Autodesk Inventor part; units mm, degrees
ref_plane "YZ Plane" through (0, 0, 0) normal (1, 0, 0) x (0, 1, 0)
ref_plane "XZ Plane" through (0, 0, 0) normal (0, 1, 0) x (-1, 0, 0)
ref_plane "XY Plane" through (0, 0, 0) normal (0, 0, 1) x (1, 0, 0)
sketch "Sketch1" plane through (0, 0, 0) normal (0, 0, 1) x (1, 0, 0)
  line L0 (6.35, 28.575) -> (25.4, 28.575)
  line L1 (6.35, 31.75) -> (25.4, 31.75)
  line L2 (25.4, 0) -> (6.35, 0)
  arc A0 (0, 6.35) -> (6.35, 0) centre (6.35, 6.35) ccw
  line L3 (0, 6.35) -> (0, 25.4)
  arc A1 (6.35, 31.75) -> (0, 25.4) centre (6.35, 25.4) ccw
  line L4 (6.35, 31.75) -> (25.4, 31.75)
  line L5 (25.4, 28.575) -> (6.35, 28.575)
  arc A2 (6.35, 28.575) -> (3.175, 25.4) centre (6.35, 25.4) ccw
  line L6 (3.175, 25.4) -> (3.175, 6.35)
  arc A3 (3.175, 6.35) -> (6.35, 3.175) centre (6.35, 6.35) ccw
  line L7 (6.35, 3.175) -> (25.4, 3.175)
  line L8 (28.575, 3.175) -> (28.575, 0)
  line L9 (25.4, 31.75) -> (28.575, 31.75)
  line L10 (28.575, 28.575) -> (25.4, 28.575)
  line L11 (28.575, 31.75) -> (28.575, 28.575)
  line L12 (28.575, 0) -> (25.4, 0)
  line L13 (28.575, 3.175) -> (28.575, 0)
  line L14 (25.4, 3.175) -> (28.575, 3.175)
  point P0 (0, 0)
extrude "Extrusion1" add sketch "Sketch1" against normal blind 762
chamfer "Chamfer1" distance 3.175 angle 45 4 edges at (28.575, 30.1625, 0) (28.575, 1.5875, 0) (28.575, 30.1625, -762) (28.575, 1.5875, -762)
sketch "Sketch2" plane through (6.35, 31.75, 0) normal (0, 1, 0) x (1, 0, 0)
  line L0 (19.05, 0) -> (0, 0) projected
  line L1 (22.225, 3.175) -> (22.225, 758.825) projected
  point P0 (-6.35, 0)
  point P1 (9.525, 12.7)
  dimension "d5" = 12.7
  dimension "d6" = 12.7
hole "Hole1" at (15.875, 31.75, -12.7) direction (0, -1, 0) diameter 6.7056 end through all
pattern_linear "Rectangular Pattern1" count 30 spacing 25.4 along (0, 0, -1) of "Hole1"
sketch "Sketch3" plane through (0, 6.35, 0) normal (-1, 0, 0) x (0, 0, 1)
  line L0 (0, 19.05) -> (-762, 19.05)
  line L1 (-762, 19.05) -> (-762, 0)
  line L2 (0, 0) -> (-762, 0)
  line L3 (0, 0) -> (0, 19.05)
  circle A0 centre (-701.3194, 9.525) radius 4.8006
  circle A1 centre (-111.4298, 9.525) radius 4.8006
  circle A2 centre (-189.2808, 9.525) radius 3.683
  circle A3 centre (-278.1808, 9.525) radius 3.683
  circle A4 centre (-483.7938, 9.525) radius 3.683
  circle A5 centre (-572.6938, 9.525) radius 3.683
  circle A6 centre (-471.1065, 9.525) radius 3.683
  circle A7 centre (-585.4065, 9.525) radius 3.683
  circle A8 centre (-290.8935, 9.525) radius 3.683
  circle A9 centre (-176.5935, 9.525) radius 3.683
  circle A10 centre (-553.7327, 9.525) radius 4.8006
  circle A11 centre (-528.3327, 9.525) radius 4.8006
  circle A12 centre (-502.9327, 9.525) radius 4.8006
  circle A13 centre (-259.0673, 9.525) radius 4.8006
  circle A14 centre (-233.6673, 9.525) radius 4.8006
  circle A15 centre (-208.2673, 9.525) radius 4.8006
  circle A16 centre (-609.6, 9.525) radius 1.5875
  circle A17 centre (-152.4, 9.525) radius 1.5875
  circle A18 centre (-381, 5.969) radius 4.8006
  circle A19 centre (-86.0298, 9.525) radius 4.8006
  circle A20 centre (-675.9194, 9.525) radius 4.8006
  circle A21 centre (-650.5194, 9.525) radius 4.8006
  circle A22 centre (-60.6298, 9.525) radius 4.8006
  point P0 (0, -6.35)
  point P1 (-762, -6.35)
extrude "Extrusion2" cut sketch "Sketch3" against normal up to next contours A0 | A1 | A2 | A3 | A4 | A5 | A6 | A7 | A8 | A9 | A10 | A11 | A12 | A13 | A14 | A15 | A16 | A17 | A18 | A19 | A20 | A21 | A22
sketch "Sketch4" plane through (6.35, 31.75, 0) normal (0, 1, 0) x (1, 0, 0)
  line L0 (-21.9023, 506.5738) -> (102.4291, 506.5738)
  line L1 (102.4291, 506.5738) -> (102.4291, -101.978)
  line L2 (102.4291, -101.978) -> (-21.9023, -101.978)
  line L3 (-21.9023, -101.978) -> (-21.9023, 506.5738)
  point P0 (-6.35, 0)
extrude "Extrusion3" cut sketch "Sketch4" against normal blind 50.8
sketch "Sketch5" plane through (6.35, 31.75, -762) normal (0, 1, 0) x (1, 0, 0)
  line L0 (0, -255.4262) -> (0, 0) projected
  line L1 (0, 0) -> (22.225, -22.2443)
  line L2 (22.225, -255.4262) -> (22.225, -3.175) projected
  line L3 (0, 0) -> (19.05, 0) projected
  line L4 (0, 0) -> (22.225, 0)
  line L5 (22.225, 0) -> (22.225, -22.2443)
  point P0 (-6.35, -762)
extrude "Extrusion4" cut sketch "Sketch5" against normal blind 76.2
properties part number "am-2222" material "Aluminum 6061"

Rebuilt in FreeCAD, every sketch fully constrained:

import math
import FreeCAD as App
import Part
import Sketcher

V = App.Vector
Q = App.Units.Quantity


def edges_at(feature, points):
    """Names of the edges that pass closest to the given points."""
    edges = feature.Shape.Edges
    near = lambda p: min(range(len(edges)), key=lambda i: edges[i].distToShape(Part.Vertex(*p))[0])
    return sorted({f"Edge{near(p) + 1}" for p in points})

doc = App.newDocument("Part")
params = doc.addObject("Spreadsheet::Sheet", "Params")
for row, (alias, value) in enumerate([
    ("sketch1_radius", "0.25 in"),
    ("sketch1_radius2", "0.125 in"),
    ("sketch1_width", "0.875 in"),
    ("pad1_length", "30 in"),
    ("chamfer_size", "0.125 in"),
    ("sketch2_diameter", "0.264 in"),
    ("hole_diameter", "0.264 in"),
    ("linearpattern_pitch", "1 in"),
    ("sketch3_diameter", "0.29 in"),
    ("sketch3_diameter2", "0.378 in"),
    ("sketch3_diameter3", "0.125 in"),
    ("pocket2_length", "2 in"),
    ("sketch5_width", "0.875 in"),
    ("pocket3_length", "3 in"),
], start=1):
    params.set(f"A{row}", alias)
    params.set(f"B{row}", "=" + value)
    params.setAlias(f"B{row}", alias)

body = doc.addObject("PartDesign::Body", "Body")

sketch1 = body.newObject("Sketcher::SketchObject", "Sketch")
sketch1.AttachmentSupport = (doc.getObject("XY_Plane"), [""])
sketch1.MapMode = "FlatFace"
sketch1.addGeometry(Part.ArcOfCircle(Part.Circle(V(6.35, 25.4, 0), V(0, 0, 1), 3.175), math.radians(90), math.radians(180)), False)
sketch1.addGeometry(Part.LineSegment(V(6.35, 28.575, 0), V(28.575, 28.575, 0)), False)
sketch1.addGeometry(Part.LineSegment(V(28.575, 28.575, 0), V(28.575, 31.75, 0)), False)
sketch1.addGeometry(Part.LineSegment(V(28.575, 31.75, 0), V(6.35, 31.75, 0)), False)
sketch1.addGeometry(Part.ArcOfCircle(Part.Circle(V(6.35, 25.4, 0), V(0, 0, 1), 6.35), math.radians(90), math.radians(180)), False)
sketch1.addGeometry(Part.LineSegment(V(0, 25.4, 0), V(0, 6.35, 0)), False)
sketch1.addGeometry(Part.ArcOfCircle(Part.Circle(V(6.35, 6.35, 0), V(0, 0, 1), 6.35), math.radians(180), math.radians(270)), False)
sketch1.addGeometry(Part.LineSegment(V(6.35, 0, 0), V(28.575, 0, 0)), False)
sketch1.addGeometry(Part.LineSegment(V(28.575, 0, 0), V(28.575, 3.175, 0)), False)
sketch1.addGeometry(Part.LineSegment(V(28.575, 3.175, 0), V(6.35, 3.175, 0)), False)
sketch1.addGeometry(Part.ArcOfCircle(Part.Circle(V(6.35, 6.35, 0), V(0, 0, 1), 3.175), math.radians(180), math.radians(270)), False)
sketch1.addGeometry(Part.LineSegment(V(3.175, 6.35, 0), V(3.175, 25.4, 0)), False)
sketch1.addConstraint(Sketcher.Constraint("Tangent", 0, 1, 1, 1))
sketch1.addConstraint(Sketcher.Constraint("Coincident", 1, 2, 2, 1))
sketch1.addConstraint(Sketcher.Constraint("Coincident", 2, 2, 3, 1))
sketch1.addConstraint(Sketcher.Constraint("Tangent", 3, 2, 4, 1))
sketch1.addConstraint(Sketcher.Constraint("Tangent", 4, 2, 5, 1))
sketch1.addConstraint(Sketcher.Constraint("Tangent", 5, 2, 6, 1))
sketch1.addConstraint(Sketcher.Constraint("Tangent", 6, 2, 7, 1))
sketch1.addConstraint(Sketcher.Constraint("Coincident", 7, 2, 8, 1))
sketch1.addConstraint(Sketcher.Constraint("Coincident", 8, 2, 9, 1))
sketch1.addConstraint(Sketcher.Constraint("Tangent", 9, 2, 10, 2))
sketch1.addConstraint(Sketcher.Constraint("Tangent", 10, 1, 11, 1))
sketch1.addConstraint(Sketcher.Constraint("Tangent", 11, 2, 0, 2))
sketch1.addConstraint(Sketcher.Constraint("Horizontal", 1))
sketch1.addConstraint(Sketcher.Constraint("Vertical", 2))
sketch1.addConstraint(Sketcher.Constraint("Horizontal", 3))
sketch1.addConstraint(Sketcher.Constraint("Vertical", 5))
sketch1.addConstraint(Sketcher.Constraint("Horizontal", 7))
sketch1.addConstraint(Sketcher.Constraint("Vertical", 8))
sketch1.addConstraint(Sketcher.Constraint("Horizontal", 9))
sketch1.addConstraint(Sketcher.Constraint("Vertical", 11))
sketch1.addConstraint(Sketcher.Constraint("Coincident", 4, 3, 0, 3))
sketch1.addConstraint(Sketcher.Constraint("Coincident", 10, 3, 6, 3))
sketch1.addConstraint(Sketcher.Constraint("Equal", 4, 6))
sketch1.addConstraint(Sketcher.Constraint("PointOnObject", 4, 2, -2))
sketch1.addConstraint(Sketcher.Constraint("PointOnObject", 6, 2, -1))
sketch1.addConstraint(Sketcher.Constraint("Vertical", 2, 2, 7, 2))
sketch1.addConstraint(Sketcher.Constraint("Radius", 4, Q("0.25 in")))
sketch1.addConstraint(Sketcher.Constraint("DistanceY", -1, 1, 0, 3, Q("1 in")))
sketch1.addConstraint(Sketcher.Constraint("Radius", 0, Q("0.125 in")))
sketch1.addConstraint(Sketcher.Constraint("DistanceX", 1, 1, 1, 2, Q("0.875 in")))
sketch1.setExpression("Constraints[26]", "Params.sketch1_radius")
sketch1.setExpression("Constraints[28]", "Params.sketch1_radius2")
sketch1.setExpression("Constraints[29]", "Params.sketch1_width")
pad1 = body.newObject("PartDesign::Pad", "Pad")
pad1.Profile = sketch1
pad1.setExpression("Length", "Params.pad1_length")
pad1.Reversed = True
doc.recompute()

chamfer = body.newObject("PartDesign::Chamfer", "Chamfer")
chamfer.Base = (pad1, edges_at(pad1, [
    (28.575, 30.163, 0),
    (28.575, 1.587, 0),
    (28.575, 30.163, -762),
    (28.575, 1.587, -762),
]))
chamfer.setExpression("Size", "Params.chamfer_size")

sketch2 = body.newObject("Sketcher::SketchObject", "Sketch001")
sketch2.AttachmentSupport = (doc.getObject("XZ_Plane"), [""])
sketch2.MapMode = "FlatFace"
sketch2.AttachmentOffset = App.Placement(V(0, 0, -1.25 * 25.4), App.Rotation())
sketch2.addGeometry(Part.Circle(V(15.875, -12.7, 0), V(0, 0, 1), 3.3528), False)
sketch2.addConstraint(Sketcher.Constraint("Diameter", 0, Q("0.264 in")))
sketch2.addConstraint(Sketcher.Constraint("DistanceY", 0, 3, -1, 1, Q("0.5 in")))
sketch2.addConstraint(Sketcher.Constraint("DistanceX", -1, 1, 0, 3, Q("0.625 in")))
sketch2.setExpression("Constraints[0]", "Params.sketch2_diameter")
doc.recompute()
hole = body.newObject("PartDesign::Hole", "Hole")
hole.Profile = sketch2
hole.ThreadType = "None"
hole.setExpression("Diameter", "Params.hole_diameter")
hole.DepthType = "ThroughAll"
hole.Reversed = True
doc.recompute()

linearpattern = body.newObject("PartDesign::LinearPattern", "LinearPattern")
linearpattern.Originals = [hole]
linearpattern.Direction = (doc.getObject("Z_Axis"), [""])
linearpattern.Mode = "offset"
linearpattern.setExpression("Offset", "Params.linearpattern_pitch")
linearpattern.Occurrences = 30
linearpattern.Reversed = True
body.Tip = linearpattern

sketch3 = body.newObject("Sketcher::SketchObject", "Sketch002")
sketch3.AttachmentSupport = (doc.getObject("YZ_Plane"), [""])
sketch3.MapMode = "FlatFace"
sketch3.addGeometry(Part.Circle(V(15.875, -701.3194, 0), V(0, 0, 1), 4.8006), False)
sketch3.addGeometry(Part.Circle(V(15.875, -111.4298, 0), V(0, 0, 1), 4.8006), False)
sketch3.addGeometry(Part.Circle(V(15.875, -189.2808, 0), V(0, 0, 1), 3.683), False)
sketch3.addGeometry(Part.Circle(V(15.875, -278.1808, 0), V(0, 0, 1), 3.683), False)
sketch3.addGeometry(Part.Circle(V(15.875, -483.7938, 0), V(0, 0, 1), 3.683), False)
sketch3.addGeometry(Part.Circle(V(15.875, -572.6938, 0), V(0, 0, 1), 3.683), False)
sketch3.addGeometry(Part.Circle(V(15.875, -471.1065, 0), V(0, 0, 1), 3.683), False)
sketch3.addGeometry(Part.Circle(V(15.875, -585.4065, 0), V(0, 0, 1), 3.683), False)
sketch3.addGeometry(Part.Circle(V(15.875, -290.8935, 0), V(0, 0, 1), 3.683), False)
sketch3.addGeometry(Part.Circle(V(15.875, -176.5935, 0), V(0, 0, 1), 3.683), False)
sketch3.addGeometry(Part.Circle(V(15.875, -553.7327, 0), V(0, 0, 1), 4.8006), False)
sketch3.addGeometry(Part.Circle(V(15.875, -528.3327, 0), V(0, 0, 1), 4.8006), False)
sketch3.addGeometry(Part.Circle(V(15.875, -502.9327, 0), V(0, 0, 1), 4.8006), False)
sketch3.addGeometry(Part.Circle(V(15.875, -259.0673, 0), V(0, 0, 1), 4.8006), False)
sketch3.addGeometry(Part.Circle(V(15.875, -233.6673, 0), V(0, 0, 1), 4.8006), False)
sketch3.addGeometry(Part.Circle(V(15.875, -208.2673, 0), V(0, 0, 1), 4.8006), False)
sketch3.addGeometry(Part.Circle(V(15.875, -609.6, 0), V(0, 0, 1), 1.5875), False)
sketch3.addGeometry(Part.Circle(V(15.875, -152.4, 0), V(0, 0, 1), 1.5875), False)
sketch3.addGeometry(Part.Circle(V(12.319, -381, 0), V(0, 0, 1), 4.8006), False)
sketch3.addGeometry(Part.Circle(V(15.875, -86.0298, 0), V(0, 0, 1), 4.8006), False)
sketch3.addGeometry(Part.Circle(V(15.875, -675.9194, 0), V(0, 0, 1), 4.8006), False)
sketch3.addGeometry(Part.Circle(V(15.875, -650.5194, 0), V(0, 0, 1), 4.8006), False)
sketch3.addGeometry(Part.Circle(V(15.875, -60.6298, 0), V(0, 0, 1), 4.8006), False)
sketch3.addConstraint(Sketcher.Constraint("Equal", 0, 1))
sketch3.addConstraint(Sketcher.Constraint("Equal", 2, 3))
sketch3.addConstraint(Sketcher.Constraint("Equal", 3, 4))
sketch3.addConstraint(Sketcher.Constraint("Equal", 4, 5))
sketch3.addConstraint(Sketcher.Constraint("Equal", 5, 6))
sketch3.addConstraint(Sketcher.Constraint("Equal", 6, 7))
sketch3.addConstraint(Sketcher.Constraint("Equal", 7, 8))
sketch3.addConstraint(Sketcher.Constraint("Equal", 8, 9))
sketch3.addConstraint(Sketcher.Constraint("Equal", 1, 10))
sketch3.addConstraint(Sketcher.Constraint("Equal", 10, 11))
sketch3.addConstraint(Sketcher.Constraint("Equal", 11, 12))
sketch3.addConstraint(Sketcher.Constraint("Equal", 12, 13))
sketch3.addConstraint(Sketcher.Constraint("Equal", 13, 14))
sketch3.addConstraint(Sketcher.Constraint("Equal", 14, 15))
sketch3.addConstraint(Sketcher.Constraint("Equal", 16, 17))
sketch3.addConstraint(Sketcher.Constraint("Equal", 15, 18))
sketch3.addConstraint(Sketcher.Constraint("Equal", 18, 19))
sketch3.addConstraint(Sketcher.Constraint("Equal", 19, 20))
sketch3.addConstraint(Sketcher.Constraint("Equal", 20, 21))
sketch3.addConstraint(Sketcher.Constraint("Equal", 21, 22))
sketch3.addConstraint(Sketcher.Constraint("Vertical", 0, 3, 1, 3))
sketch3.addConstraint(Sketcher.Constraint("Vertical", 1, 3, 2, 3))
sketch3.addConstraint(Sketcher.Constraint("Vertical", 2, 3, 3, 3))
sketch3.addConstraint(Sketcher.Constraint("Vertical", 3, 3, 4, 3))
sketch3.addConstraint(Sketcher.Constraint("Vertical", 4, 3, 5, 3))
sketch3.addConstraint(Sketcher.Constraint("Vertical", 5, 3, 6, 3))
sketch3.addConstraint(Sketcher.Constraint("Vertical", 6, 3, 7, 3))
sketch3.addConstraint(Sketcher.Constraint("Vertical", 7, 3, 8, 3))
sketch3.addConstraint(Sketcher.Constraint("Vertical", 8, 3, 9, 3))
sketch3.addConstraint(Sketcher.Constraint("Vertical", 9, 3, 10, 3))
sketch3.addConstraint(Sketcher.Constraint("Vertical", 10, 3, 11, 3))
sketch3.addConstraint(Sketcher.Constraint("Vertical", 11, 3, 12, 3))
sketch3.addConstraint(Sketcher.Constraint("Vertical", 12, 3, 13, 3))
sketch3.addConstraint(Sketcher.Constraint("Vertical", 13, 3, 14, 3))
sketch3.addConstraint(Sketcher.Constraint("Vertical", 14, 3, 15, 3))
sketch3.addConstraint(Sketcher.Constraint("Vertical", 15, 3, 16, 3))
sketch3.addConstraint(Sketcher.Constraint("Vertical", 16, 3, 17, 3))
sketch3.addConstraint(Sketcher.Constraint("Vertical", 17, 3, 19, 3))
sketch3.addConstraint(Sketcher.Constraint("Vertical", 19, 3, 20, 3))
sketch3.addConstraint(Sketcher.Constraint("Vertical", 20, 3, 21, 3))
sketch3.addConstraint(Sketcher.Constraint("Vertical", 21, 3, 22, 3))
sketch3.addConstraint(Sketcher.Constraint("Diameter", 2, Q("0.29 in")))
sketch3.addConstraint(Sketcher.Constraint("Diameter", 0, Q("0.378 in")))
sketch3.addConstraint(Sketcher.Constraint("Diameter", 16, Q("0.125 in")))
sketch3.addConstraint(Sketcher.Constraint("DistanceY", 16, 3, -1, 1, Q("24 in")))
sketch3.addConstraint(Sketcher.Constraint("DistanceY", 17, 3, -1, 1, Q("6 in")))
sketch3.addConstraint(Sketcher.Constraint("DistanceY", 18, 3, -1, 1, Q("15 in")))
sketch3.addConstraint(Sketcher.Constraint("DistanceY", 10, 3, 11, 3, Q("1 in")))
sketch3.addConstraint(Sketcher.Constraint("DistanceY", 11, 3, 12, 3, Q("1 in")))
sketch3.addConstraint(Sketcher.Constraint("DistanceY", 13, 3, 14, 3, Q("1 in")))
sketch3.addConstraint(Sketcher.Constraint("DistanceY", 14, 3, 15, 3, Q("1 in")))
sketch3.addConstraint(Sketcher.Constraint("DistanceY", 1, 3, 19, 3, Q("1 in")))
sketch3.addConstraint(Sketcher.Constraint("DistanceY", 0, 3, 20, 3, Q("1 in")))
sketch3.addConstraint(Sketcher.Constraint("DistanceY", 20, 3, 21, 3, Q("1 in")))
sketch3.addConstraint(Sketcher.Constraint("DistanceY", 19, 3, 22, 3, Q("1 in")))
sketch3.addConstraint(Sketcher.Constraint("DistanceY", 3, 3, 2, 3, Q("3.5 in")))
sketch3.addConstraint(Sketcher.Constraint("DistanceY", 5, 3, 4, 3, Q("3.5 in")))
sketch3.addConstraint(Sketcher.Constraint("DistanceY", 7, 3, 6, 3, Q("4.5 in")))
sketch3.addConstraint(Sketcher.Constraint("DistanceY", 8, 3, 9, 3, Q("4.5 in")))
sketch3.addConstraint(Sketcher.Constraint("DistanceY", 4, 3, 1, 3, Q("14.66 in")))
sketch3.addConstraint(Sketcher.Constraint("DistanceX", 18, 3, 6, 3, Q("0.14 in")))
sketch3.addConstraint(Sketcher.Constraint("DistanceX", -1, 1, 0, 3, Q("0.625 in")))
sketch3.addConstraint(Sketcher.Constraint("DistanceY", 0, 3, -1, 1, Q("27.611 in")))
sketch3.addConstraint(Sketcher.Constraint("DistanceY", 1, 3, -1, 1, Q("4.387 in")))
sketch3.addConstraint(Sketcher.Constraint("DistanceY", 2, 3, -1, 1, Q("7.452 in")))
sketch3.addConstraint(Sketcher.Constraint("DistanceY", 6, 3, 8, 3, Q("7.095 in")))
sketch3.addConstraint(Sketcher.Constraint("DistanceY", 7, 3, 10, 3, Q("1.247 in")))
sketch3.addConstraint(Sketcher.Constraint("DistanceY", 8, 3, 13, 3, Q("1.253 in")))
sketch3.addConstraint(Sketcher.Constraint("DistanceY", 13, 3, 1, 3, Q("5.8125 in")))
sketch3.setExpression("Constraints[41]", "Params.sketch3_diameter")
sketch3.setExpression("Constraints[42]", "Params.sketch3_diameter2")
sketch3.setExpression("Constraints[43]", "Params.sketch3_diameter3")
pocket1 = body.newObject("PartDesign::Pocket", "Pocket")
pocket1.Profile = sketch3
pocket1.Type = "UpToFirst"
pocket1.Reversed = True

sketch4 = body.newObject("Sketcher::SketchObject", "Sketch003")
sketch4.AttachmentSupport = (doc.getObject("XZ_Plane"), [""])
sketch4.MapMode = "FlatFace"
sketch4.AttachmentOffset = App.Placement(V(0, 0, -1.25 * 25.4), App.Rotation())
sketch4.addGeometry(Part.LineSegment(V(108.7791, -506.5738, 0), V(-15.5523, -506.5738, 0)), False)
sketch4.addGeometry(Part.LineSegment(V(-15.5523, -506.5738, 0), V(-15.5523, 101.978, 0)), False)
sketch4.addGeometry(Part.LineSegment(V(-15.5523, 101.978, 0), V(108.7791, 101.978, 0)), False)
sketch4.addGeometry(Part.LineSegment(V(108.7791, 101.978, 0), V(108.7791, -506.5738, 0)), False)
sketch4.addConstraint(Sketcher.Constraint("Coincident", 0, 2, 1, 1))
sketch4.addConstraint(Sketcher.Constraint("Coincident", 1, 2, 2, 1))
sketch4.addConstraint(Sketcher.Constraint("Coincident", 2, 2, 3, 1))
sketch4.addConstraint(Sketcher.Constraint("Coincident", 3, 2, 0, 1))
sketch4.addConstraint(Sketcher.Constraint("Horizontal", 0))
sketch4.addConstraint(Sketcher.Constraint("Vertical", 1))
sketch4.addConstraint(Sketcher.Constraint("Horizontal", 2))
sketch4.addConstraint(Sketcher.Constraint("Vertical", 3))
sketch4.addConstraint(Sketcher.Constraint("DistanceX", 0, 2, 0, 1, Q("124.3314 mm")))
sketch4.addConstraint(Sketcher.Constraint("DistanceY", 1, 1, 1, 2, Q("608.5518 mm")))
sketch4.addConstraint(Sketcher.Constraint("DistanceX", 0, 2, -1, 1, Q("0.6123 in")))
sketch4.addConstraint(Sketcher.Constraint("DistanceY", 0, 2, -1, 1, Q("506.5738 mm")))
pocket2 = body.newObject("PartDesign::Pocket", "Pocket001")
pocket2.Profile = sketch4
pocket2.setExpression("Length", "Params.pocket2_length")
pocket2.Reversed = True

sketch5 = body.newObject("Sketcher::SketchObject", "Sketch004")
sketch5.AttachmentSupport = (doc.getObject("XZ_Plane"), [""])
sketch5.MapMode = "FlatFace"
sketch5.AttachmentOffset = App.Placement(V(0, 0, -1.25 * 25.4), App.Rotation())
sketch5.addGeometry(Part.LineSegment(V(28.575, -762, 0), V(6.35, -762, 0)), False)
sketch5.addGeometry(Part.LineSegment(V(6.35, -762, 0), V(28.575, -739.7557, 0)), False)
sketch5.addGeometry(Part.LineSegment(V(28.575, -739.7557, 0), V(28.575, -762, 0)), False)
sketch5.addConstraint(Sketcher.Constraint("Coincident", 0, 2, 1, 1))
sketch5.addConstraint(Sketcher.Constraint("Coincident", 1, 2, 2, 1))
sketch5.addConstraint(Sketcher.Constraint("Coincident", 2, 2, 0, 1))
sketch5.addConstraint(Sketcher.Constraint("Horizontal", 0))
sketch5.addConstraint(Sketcher.Constraint("Vertical", 2))
sketch5.addConstraint(Sketcher.Constraint("DistanceY", 0, 2, -1, 1, Q("30 in")))
sketch5.addConstraint(Sketcher.Constraint("DistanceX", 0, 2, 0, 1, Q("0.875 in")))
sketch5.addConstraint(Sketcher.Constraint("DistanceX", -1, 1, 0, 2, Q("0.25 in")))
sketch5.addConstraint(Sketcher.Constraint("DistanceY", 2, 2, 2, 1, Q("22.2443 mm")))
sketch5.setExpression("Constraints[6]", "Params.sketch5_width")
pocket3 = body.newObject("PartDesign::Pocket", "Pocket002")
pocket3.Profile = sketch5
pocket3.setExpression("Length", "Params.pocket3_length")
pocket3.Reversed = True

doc.recompute()
